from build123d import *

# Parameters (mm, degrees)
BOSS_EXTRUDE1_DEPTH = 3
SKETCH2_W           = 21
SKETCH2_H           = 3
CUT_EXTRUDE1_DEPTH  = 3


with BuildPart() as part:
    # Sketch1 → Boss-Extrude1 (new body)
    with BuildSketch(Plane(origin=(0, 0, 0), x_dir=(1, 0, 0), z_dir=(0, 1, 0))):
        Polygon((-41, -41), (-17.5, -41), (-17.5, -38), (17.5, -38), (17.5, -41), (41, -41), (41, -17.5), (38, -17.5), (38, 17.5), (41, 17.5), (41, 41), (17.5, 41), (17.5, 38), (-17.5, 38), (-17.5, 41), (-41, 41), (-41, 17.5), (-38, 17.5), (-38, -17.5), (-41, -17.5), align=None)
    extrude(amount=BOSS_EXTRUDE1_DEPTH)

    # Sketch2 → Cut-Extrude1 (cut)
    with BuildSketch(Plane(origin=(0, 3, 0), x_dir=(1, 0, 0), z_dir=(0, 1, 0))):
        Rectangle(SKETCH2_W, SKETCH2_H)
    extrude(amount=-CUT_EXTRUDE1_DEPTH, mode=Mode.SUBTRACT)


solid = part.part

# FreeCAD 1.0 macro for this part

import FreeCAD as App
import Part
import Sketcher

doc = App.newDocument("Part")
body = doc.addObject("PartDesign::Body", "Body")

sketch1 = body.newObject("Sketcher::SketchObject", "Sketch")
sketch1.AttachmentSupport = (doc.getObject("XZ_Plane"), [""])
sketch1.MapMode = "FlatFace"
sketch1.addGeometry(Part.LineSegment(App.Vector(-41, 41, 0), App.Vector(-17.5, 41, 0)), False)
sketch1.addGeometry(Part.LineSegment(App.Vector(-17.5, 41, 0), App.Vector(-17.5, 38, 0)), False)
sketch1.addGeometry(Part.LineSegment(App.Vector(-17.5, 38, 0), App.Vector(17.5, 38, 0)), False)
sketch1.addGeometry(Part.LineSegment(App.Vector(17.5, 38, 0), App.Vector(17.5, 41, 0)), False)
sketch1.addGeometry(Part.LineSegment(App.Vector(17.5, 41, 0), App.Vector(41, 41, 0)), False)
sketch1.addGeometry(Part.LineSegment(App.Vector(41, 41, 0), App.Vector(41, 17.5, 0)), False)
sketch1.addGeometry(Part.LineSegment(App.Vector(41, 17.5, 0), App.Vector(38, 17.5, 0)), False)
sketch1.addGeometry(Part.LineSegment(App.Vector(38, 17.5, 0), App.Vector(38, -17.5, 0)), False)
sketch1.addGeometry(Part.LineSegment(App.Vector(38, -17.5, 0), App.Vector(41, -17.5, 0)), False)
sketch1.addGeometry(Part.LineSegment(App.Vector(41, -17.5, 0), App.Vector(41, -41, 0)), False)
sketch1.addGeometry(Part.LineSegment(App.Vector(41, -41, 0), App.Vector(17.5, -41, 0)), False)
sketch1.addGeometry(Part.LineSegment(App.Vector(17.5, -41, 0), App.Vector(17.5, -38, 0)), False)
sketch1.addGeometry(Part.LineSegment(App.Vector(17.5, -38, 0), App.Vector(-17.5, -38, 0)), False)
sketch1.addGeometry(Part.LineSegment(App.Vector(-17.5, -38, 0), App.Vector(-17.5, -41, 0)), False)
sketch1.addGeometry(Part.LineSegment(App.Vector(-17.5, -41, 0), App.Vector(-41, -41, 0)), False)
sketch1.addGeometry(Part.LineSegment(App.Vector(-41, -41, 0), App.Vector(-41, -17.5, 0)), False)
sketch1.addGeometry(Part.LineSegment(App.Vector(-41, -17.5, 0), App.Vector(-38, -17.5, 0)), False)
sketch1.addGeometry(Part.LineSegment(App.Vector(-38, -17.5, 0), App.Vector(-38, 17.5, 0)), False)
sketch1.addGeometry(Part.LineSegment(App.Vector(-38, 17.5, 0), App.Vector(-41, 17.5, 0)), False)
sketch1.addGeometry(Part.LineSegment(App.Vector(-41, 17.5, 0), App.Vector(-41, 41, 0)), False)
sketch1.addConstraint(Sketcher.Constraint("Coincident", 0, 2, 1, 1))
sketch1.addConstraint(Sketcher.Constraint("Coincident", 1, 2, 2, 1))
sketch1.addConstraint(Sketcher.Constraint("Coincident", 2, 2, 3, 1))
sketch1.addConstraint(Sketcher.Constraint("Coincident", 3, 2, 4, 1))
sketch1.addConstraint(Sketcher.Constraint("Coincident", 4, 2, 5, 1))
sketch1.addConstraint(Sketcher.Constraint("Coincident", 5, 2, 6, 1))
sketch1.addConstraint(Sketcher.Constraint("Coincident", 6, 2, 7, 1))
sketch1.addConstraint(Sketcher.Constraint("Coincident", 7, 2, 8, 1))
sketch1.addConstraint(Sketcher.Constraint("Coincident", 8, 2, 9, 1))
sketch1.addConstraint(Sketcher.Constraint("Coincident", 9, 2, 10, 1))
sketch1.addConstraint(Sketcher.Constraint("Coincident", 10, 2, 11, 1))
sketch1.addConstraint(Sketcher.Constraint("Coincident", 11, 2, 12, 1))
sketch1.addConstraint(Sketcher.Constraint("Coincident", 12, 2, 13, 1))
sketch1.addConstraint(Sketcher.Constraint("Coincident", 13, 2, 14, 1))
sketch1.addConstraint(Sketcher.Constraint("Coincident", 14, 2, 15, 1))
sketch1.addConstraint(Sketcher.Constraint("Coincident", 15, 2, 16, 1))
sketch1.addConstraint(Sketcher.Constraint("Coincident", 16, 2, 17, 1))
sketch1.addConstraint(Sketcher.Constraint("Coincident", 17, 2, 18, 1))
sketch1.addConstraint(Sketcher.Constraint("Coincident", 18, 2, 19, 1))
sketch1.addConstraint(Sketcher.Constraint("Coincident", 19, 2, 0, 1))
sketch1.addConstraint(Sketcher.Constraint("Horizontal", 0))
sketch1.addConstraint(Sketcher.Constraint("Vertical", 1))
sketch1.addConstraint(Sketcher.Constraint("Horizontal", 2))
sketch1.addConstraint(Sketcher.Constraint("Vertical", 3))
sketch1.addConstraint(Sketcher.Constraint("Horizontal", 4))
sketch1.addConstraint(Sketcher.Constraint("Vertical", 5))
sketch1.addConstraint(Sketcher.Constraint("Horizontal", 6))
sketch1.addConstraint(Sketcher.Constraint("Vertical", 7))
sketch1.addConstraint(Sketcher.Constraint("Horizontal", 8))
sketch1.addConstraint(Sketcher.Constraint("Vertical", 9))
sketch1.addConstraint(Sketcher.Constraint("Horizontal", 10))
sketch1.addConstraint(Sketcher.Constraint("Vertical", 11))
sketch1.addConstraint(Sketcher.Constraint("Horizontal", 12))
sketch1.addConstraint(Sketcher.Constraint("Vertical", 13))
sketch1.addConstraint(Sketcher.Constraint("Horizontal", 14))
sketch1.addConstraint(Sketcher.Constraint("Vertical", 15))
sketch1.addConstraint(Sketcher.Constraint("Horizontal", 16))
sketch1.addConstraint(Sketcher.Constraint("Vertical", 17))
sketch1.addConstraint(Sketcher.Constraint("Horizontal", 18))
sketch1.addConstraint(Sketcher.Constraint("Vertical", 19))
sketch1.addConstraint(Sketcher.Constraint("Symmetric", 0, 2, 10, 2, -1, 1))
sketch1.addConstraint(Sketcher.Constraint("Symmetric", 2, 2, 12, 2, -1, 1))
sketch1.addConstraint(Sketcher.Constraint("Symmetric", 4, 2, 14, 2, -1, 1))
sketch1.addConstraint(Sketcher.Constraint("Symmetric", 6, 2, 16, 2, -1, 1))
sketch1.addConstraint(Sketcher.Constraint("Symmetric", 8, 2, 18, 2, -1, 1))
sketch1.addConstraint(Sketcher.Constraint("Symmetric", 0, 2, 3, 2, -2))
sketch1.addConstraint(Sketcher.Constraint("Symmetric", 8, 2, 15, 2, -2))
sketch1.addConstraint(Sketcher.Constraint("Equal", 18, 1))
sketch1.addConstraint(Sketcher.Constraint("Equal", 14, 5))
sketch1.addConstraint(Sketcher.Constraint("Equal", 12, 7))
sketch1.addConstraint(Sketcher.Constraint("DistanceX", 2, 1, 2, 2, 35.0))
sketch1.addConstraint(Sketcher.Constraint("DistanceX", 6, 2, 6, 1, 3.0))
sketch1.addConstraint(Sketcher.Constraint("DistanceX", 0, 1, 0, 2, 23.5))
pad1 = body.newObject("PartDesign::Pad", "Pad")
pad1.Profile = sketch1
pad1.Length = 3
pad1.Reversed = True

sketch2 = body.newObject("Sketcher::SketchObject", "Sketch001")
sketch2.AttachmentSupport = (doc.getObject("XZ_Plane"), [""])
sketch2.MapMode = "FlatFace"
sketch2.AttachmentOffset = App.Placement(App.Vector(0, 0, -3), App.Rotation())
sketch2.addGeometry(Part.LineSegment(App.Vector(-10.5, -1.5, 0), App.Vector(-10.5, 1.5, 0)), False)
sketch2.addGeometry(Part.LineSegment(App.Vector(-10.5, 1.5, 0), App.Vector(10.5, 1.5, 0)), False)
sketch2.addGeometry(Part.LineSegment(App.Vector(10.5, 1.5, 0), App.Vector(10.5, -1.5, 0)), False)
sketch2.addGeometry(Part.LineSegment(App.Vector(10.5, -1.5, 0), App.Vector(-10.5, -1.5, 0)), False)
sketch2.addConstraint(Sketcher.Constraint("Coincident", 0, 2, 1, 1))
sketch2.addConstraint(Sketcher.Constraint("Coincident", 1, 2, 2, 1))
sketch2.addConstraint(Sketcher.Constraint("Coincident", 2, 2, 3, 1))
sketch2.addConstraint(Sketcher.Constraint("Coincident", 3, 2, 0, 1))
sketch2.addConstraint(Sketcher.Constraint("Vertical", 0))
sketch2.addConstraint(Sketcher.Constraint("Horizontal", 1))
sketch2.addConstraint(Sketcher.Constraint("Vertical", 2))
sketch2.addConstraint(Sketcher.Constraint("Horizontal", 3))
sketch2.addConstraint(Sketcher.Constraint("Symmetric", 0, 2, 2, 2, -1, 1))
sketch2.addConstraint(Sketcher.Constraint("DistanceX", 1, 1, 1, 2, 21.0))
sketch2.addConstraint(Sketcher.Constraint("DistanceY", 0, 1, 0, 2, 3.0))
pocket1 = body.newObject("PartDesign::Pocket", "Pocket")
pocket1.Profile = sketch2
pocket1.Length = 3
pocket1.Reversed = True

doc.recompute()
